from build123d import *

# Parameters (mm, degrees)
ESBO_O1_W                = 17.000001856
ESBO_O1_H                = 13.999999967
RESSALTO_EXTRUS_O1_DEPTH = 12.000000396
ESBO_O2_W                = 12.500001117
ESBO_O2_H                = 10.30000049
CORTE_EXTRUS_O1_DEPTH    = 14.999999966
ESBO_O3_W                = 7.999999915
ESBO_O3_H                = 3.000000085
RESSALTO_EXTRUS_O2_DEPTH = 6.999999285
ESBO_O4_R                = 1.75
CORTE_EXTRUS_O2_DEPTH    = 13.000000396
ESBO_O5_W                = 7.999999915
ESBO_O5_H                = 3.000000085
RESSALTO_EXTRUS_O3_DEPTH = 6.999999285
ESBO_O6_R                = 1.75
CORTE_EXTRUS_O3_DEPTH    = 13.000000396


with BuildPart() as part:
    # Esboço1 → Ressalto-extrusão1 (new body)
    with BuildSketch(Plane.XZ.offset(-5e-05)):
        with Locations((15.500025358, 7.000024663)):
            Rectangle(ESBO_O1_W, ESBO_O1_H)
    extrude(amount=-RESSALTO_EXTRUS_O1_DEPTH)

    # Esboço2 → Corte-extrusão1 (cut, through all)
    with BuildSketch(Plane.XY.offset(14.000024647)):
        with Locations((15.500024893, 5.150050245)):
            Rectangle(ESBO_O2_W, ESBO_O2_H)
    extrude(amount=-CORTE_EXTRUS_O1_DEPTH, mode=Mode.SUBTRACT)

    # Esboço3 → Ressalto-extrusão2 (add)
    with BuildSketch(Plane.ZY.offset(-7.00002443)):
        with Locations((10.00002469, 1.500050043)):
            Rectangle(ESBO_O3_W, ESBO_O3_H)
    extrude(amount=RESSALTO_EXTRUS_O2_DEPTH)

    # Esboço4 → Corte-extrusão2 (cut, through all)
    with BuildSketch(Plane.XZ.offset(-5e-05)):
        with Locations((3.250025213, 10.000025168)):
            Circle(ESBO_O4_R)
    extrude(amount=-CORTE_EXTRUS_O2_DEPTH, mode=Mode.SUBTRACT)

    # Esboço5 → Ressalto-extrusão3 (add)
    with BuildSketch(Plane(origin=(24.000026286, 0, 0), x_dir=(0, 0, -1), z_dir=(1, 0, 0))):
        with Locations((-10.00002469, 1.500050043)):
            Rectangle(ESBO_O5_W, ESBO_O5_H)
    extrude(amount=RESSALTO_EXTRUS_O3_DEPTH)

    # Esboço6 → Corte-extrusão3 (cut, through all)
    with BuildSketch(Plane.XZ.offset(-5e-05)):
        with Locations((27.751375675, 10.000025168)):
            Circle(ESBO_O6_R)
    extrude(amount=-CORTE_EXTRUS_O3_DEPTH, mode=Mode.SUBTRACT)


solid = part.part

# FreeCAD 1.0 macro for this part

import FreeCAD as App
import Part
import Sketcher

doc = App.newDocument("Part")
body = doc.addObject("PartDesign::Body", "Body")

# Sketch on XZ plane
sketch1 = doc.addObject("Sketcher::SketchObject", "Sketch")
body.addObject(sketch1)
sketch1.AttachmentSupport = (doc.XZ_Plane, [""])
sketch1.MapMode = "FlatFace"
sketch1.AttachmentOffset = App.Placement(App.Vector(0, 0, -0.00005), App.Rotation())
sketch1.addGeometry([
    Part.LineSegment(App.Vector(7, 14, 0), App.Vector(7, 0, 0)),
    Part.LineSegment(App.Vector(7, 0, 0), App.Vector(24, 0, 0)),
    Part.LineSegment(App.Vector(24, 0, 0), App.Vector(24, 14, 0)),
    Part.LineSegment(App.Vector(24, 14, 0), App.Vector(7, 14, 0)),
], False)
sketch1.addConstraint([
    Sketcher.Constraint("Coincident", 0, 2, 1, 1),
    Sketcher.Constraint("Coincident", 1, 2, 2, 1),
    Sketcher.Constraint("Coincident", 2, 2, 3, 1),
    Sketcher.Constraint("Coincident", 3, 2, 0, 1),
    Sketcher.Constraint("Vertical", 0),
    Sketcher.Constraint("Horizontal", 1),
    Sketcher.Constraint("Vertical", 2),
    Sketcher.Constraint("Horizontal", 3),
    Sketcher.Constraint("DistanceX", 1, 1, 1, 2, 17.000002),
    Sketcher.Constraint("DistanceY", 0, 2, 0, 1, 14.0),
    Sketcher.Constraint("DistanceX", -1, 1, 0, 2, 7.000024),
    Sketcher.Constraint("DistanceY", -1, 1, 2, 2, 14.000025),
])
pad1 = doc.addObject("PartDesign::Pad", "Pad")
body.addObject(pad1)
pad1.Profile = sketch1
pad1.Length = 12
pad1.Reversed = True

# Sketch on XY plane
sketch2 = doc.addObject("Sketcher::SketchObject", "Sketch001")
body.addObject(sketch2)
sketch2.AttachmentSupport = (doc.XY_Plane, [""])
sketch2.MapMode = "FlatFace"
sketch2.AttachmentOffset = App.Placement(App.Vector(0, 0, 14.000025), App.Rotation())
sketch2.addGeometry([
    Part.LineSegment(App.Vector(9, 10, 0), App.Vector(9, 0, 0)),
    Part.LineSegment(App.Vector(9, 0, 0), App.Vector(22, 0, 0)),
    Part.LineSegment(App.Vector(22, 0, 0), App.Vector(22, 10, 0)),
    Part.LineSegment(App.Vector(22, 10, 0), App.Vector(9, 10, 0)),
], False)
sketch2.addConstraint([
    Sketcher.Constraint("Coincident", 0, 2, 1, 1),
    Sketcher.Constraint("Coincident", 1, 2, 2, 1),
    Sketcher.Constraint("Coincident", 2, 2, 3, 1),
    Sketcher.Constraint("Coincident", 3, 2, 0, 1),
    Sketcher.Constraint("Vertical", 0),
    Sketcher.Constraint("Horizontal", 1),
    Sketcher.Constraint("Vertical", 2),
    Sketcher.Constraint("Horizontal", 3),
    Sketcher.Constraint("DistanceX", 1, 1, 1, 2, 12.500001),
    Sketcher.Constraint("DistanceY", 0, 2, 0, 1, 10.3),
    Sketcher.Constraint("DistanceY", -1, 1, 2, 2, 10.30005),
    Sketcher.Constraint("DistanceX", -1, 1, 0, 2, 9.250024),
])
pocket1 = doc.addObject("PartDesign::Pocket", "Pocket")
body.addObject(pocket1)
pocket1.Profile = sketch2
pocket1.Type = "ThroughAll"

# Sketch on YZ plane
sketch3 = doc.addObject("Sketcher::SketchObject", "Sketch002")
body.addObject(sketch3)
sketch3.AttachmentSupport = (doc.YZ_Plane, [""])
sketch3.MapMode = "FlatFace"
sketch3.AttachmentOffset = App.Placement(App.Vector(0, 0, 7.000024), App.Rotation())
sketch3.addGeometry([
    Part.LineSegment(App.Vector(3, 6, 0), App.Vector(0, 6, 0)),
    Part.LineSegment(App.Vector(0, 6, 0), App.Vector(0, 14, 0)),
    Part.LineSegment(App.Vector(0, 14, 0), App.Vector(3, 14, 0)),
    Part.LineSegment(App.Vector(3, 14, 0), App.Vector(3, 6, 0)),
], False)
sketch3.addConstraint([
    Sketcher.Constraint("Coincident", 0, 2, 1, 1),
    Sketcher.Constraint("Coincident", 1, 2, 2, 1),
    Sketcher.Constraint("Coincident", 2, 2, 3, 1),
    Sketcher.Constraint("Coincident", 3, 2, 0, 1),
    Sketcher.Constraint("Horizontal", 0),
    Sketcher.Constraint("Vertical", 1),
    Sketcher.Constraint("Horizontal", 2),
    Sketcher.Constraint("Vertical", 3),
    Sketcher.Constraint("DistanceX", 0, 2, 0, 1, 3.0),
    Sketcher.Constraint("DistanceY", 1, 1, 1, 2, 8.0),
    Sketcher.Constraint("DistanceX", -1, 1, 2, 2, 3.00005),
    Sketcher.Constraint("DistanceY", -1, 1, 0, 2, 6.000025),
])
pad2 = doc.addObject("PartDesign::Pad", "Pad001")
body.addObject(pad2)
pad2.Profile = sketch3
pad2.Length = 6.999999
pad2.Reversed = True

# Sketch on XZ plane
sketch4 = doc.addObject("Sketcher::SketchObject", "Sketch003")
body.addObject(sketch4)
sketch4.AttachmentSupport = (doc.XZ_Plane, [""])
sketch4.MapMode = "FlatFace"
sketch4.AttachmentOffset = App.Placement(App.Vector(0, 0, -0.00005), App.Rotation())
sketch4.addGeometry(Part.Circle(App.Vector(3.3, 10, 0), App.Vector(0, 0, 1), 1.8), False)
sketch4.addConstraint([
    Sketcher.Constraint("Diameter", 0, 3.5),
    Sketcher.Constraint("DistanceX", -1, 1, 0, 3, 3.250025),
    Sketcher.Constraint("DistanceY", -1, 1, 0, 3, 10.000025),
])
pocket2 = doc.addObject("PartDesign::Pocket", "Pocket001")
body.addObject(pocket2)
pocket2.Profile = sketch4
pocket2.Type = "ThroughAll"

# Sketch on YZ plane
sketch5 = doc.addObject("Sketcher::SketchObject", "Sketch004")
body.addObject(sketch5)
sketch5.AttachmentSupport = (doc.YZ_Plane, [""])
sketch5.MapMode = "FlatFace"
sketch5.AttachmentOffset = App.Placement(App.Vector(0, 0, 24.000026), App.Rotation())
sketch5.addGeometry([
    Part.LineSegment(App.Vector(3, 14, 0), App.Vector(0, 14, 0)),
    Part.LineSegment(App.Vector(0, 14, 0), App.Vector(0, 6, 0)),
    Part.LineSegment(App.Vector(0, 6, 0), App.Vector(3, 6, 0)),
    Part.LineSegment(App.Vector(3, 6, 0), App.Vector(3, 14, 0)),
], False)
sketch5.addConstraint([
    Sketcher.Constraint("Coincident", 0, 2, 1, 1),
    Sketcher.Constraint("Coincident", 1, 2, 2, 1),
    Sketcher.Constraint("Coincident", 2, 2, 3, 1),
    Sketcher.Constraint("Coincident", 3, 2, 0, 1),
    Sketcher.Constraint("Horizontal", 0),
    Sketcher.Constraint("Vertical", 1),
    Sketcher.Constraint("Horizontal", 2),
    Sketcher.Constraint("Vertical", 3),
    Sketcher.Constraint("DistanceX", 0, 2, 0, 1, 3.0),
    Sketcher.Constraint("DistanceY", 1, 2, 1, 1, 8.0),
    Sketcher.Constraint("DistanceX", -1, 1, 2, 2, 3.00005),
    Sketcher.Constraint("DistanceY", -1, 1, 0, 2, 14.000025),
])
pad3 = doc.addObject("PartDesign::Pad", "Pad002")
body.addObject(pad3)
pad3.Profile = sketch5
pad3.Length = 6.999999

# Sketch on XZ plane
sketch6 = doc.addObject("Sketcher::SketchObject", "Sketch005")
body.addObject(sketch6)
sketch6.AttachmentSupport = (doc.XZ_Plane, [""])
sketch6.MapMode = "FlatFace"
sketch6.AttachmentOffset = App.Placement(App.Vector(0, 0, -0.00005), App.Rotation())
sketch6.addGeometry(Part.Circle(App.Vector(27.8, 10, 0), App.Vector(0, 0, 1), 1.8), False)
sketch6.addConstraint([
    Sketcher.Constraint("Diameter", 0, 3.5),
    Sketcher.Constraint("DistanceX", -1, 1, 0, 3, 27.751376),
    Sketcher.Constraint("DistanceY", -1, 1, 0, 3, 10.000025),
])
pocket3 = doc.addObject("PartDesign::Pocket", "Pocket002")
body.addObject(pocket3)
pocket3.Profile = sketch6
pocket3.Type = "ThroughAll"

doc.recompute()
